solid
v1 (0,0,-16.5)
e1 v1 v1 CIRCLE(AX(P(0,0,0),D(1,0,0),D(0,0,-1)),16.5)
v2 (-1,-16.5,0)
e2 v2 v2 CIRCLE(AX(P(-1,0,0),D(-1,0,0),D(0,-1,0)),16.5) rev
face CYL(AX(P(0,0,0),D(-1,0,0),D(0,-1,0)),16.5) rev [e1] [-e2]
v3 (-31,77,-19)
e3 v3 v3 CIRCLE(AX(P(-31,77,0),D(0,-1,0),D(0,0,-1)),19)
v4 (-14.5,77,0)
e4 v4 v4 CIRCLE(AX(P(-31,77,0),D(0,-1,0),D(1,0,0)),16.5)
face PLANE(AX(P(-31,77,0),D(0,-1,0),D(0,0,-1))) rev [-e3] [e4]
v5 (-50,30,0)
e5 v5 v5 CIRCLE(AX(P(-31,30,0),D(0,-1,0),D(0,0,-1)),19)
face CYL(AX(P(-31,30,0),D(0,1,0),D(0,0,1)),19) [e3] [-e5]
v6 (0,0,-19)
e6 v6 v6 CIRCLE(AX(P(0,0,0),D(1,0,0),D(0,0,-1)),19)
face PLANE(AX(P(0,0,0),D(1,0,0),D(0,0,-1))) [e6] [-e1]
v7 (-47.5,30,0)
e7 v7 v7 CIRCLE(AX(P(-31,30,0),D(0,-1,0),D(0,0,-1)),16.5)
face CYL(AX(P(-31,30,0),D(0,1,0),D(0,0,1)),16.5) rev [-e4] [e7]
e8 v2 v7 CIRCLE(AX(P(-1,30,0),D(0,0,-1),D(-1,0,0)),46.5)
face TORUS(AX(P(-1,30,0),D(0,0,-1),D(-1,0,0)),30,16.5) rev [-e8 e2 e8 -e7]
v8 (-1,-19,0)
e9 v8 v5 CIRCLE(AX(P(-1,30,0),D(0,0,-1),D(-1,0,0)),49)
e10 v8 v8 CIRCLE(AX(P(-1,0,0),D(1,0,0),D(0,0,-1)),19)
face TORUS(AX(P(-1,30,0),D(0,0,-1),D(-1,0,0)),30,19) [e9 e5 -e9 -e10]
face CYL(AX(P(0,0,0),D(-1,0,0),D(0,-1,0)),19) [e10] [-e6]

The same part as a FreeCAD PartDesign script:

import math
import FreeCAD as App
import Part
import Sketcher

doc = App.newDocument("Part")
body = doc.addObject("PartDesign::Body", "Body")

# Sketch on YZ plane
sketch1 = body.newObject("Sketcher::SketchObject", "Sketch")
sketch1.AttachmentSupport = (doc.getObject("YZ_Plane"), [""])
sketch1.MapMode = "FlatFace"
sketch1.addGeometry([
    Part.Circle(App.Vector(0, 0, 0), App.Vector(0, 0, 1), 19),
    Part.Circle(App.Vector(0, 0, 0), App.Vector(0, 0, 1), 16),
], False)
sketch1.addConstraint([
    Sketcher.Constraint("Coincident", 0, 3, -1, 1),
    Sketcher.Constraint("Coincident", 1, 3, -1, 1),
    Sketcher.Constraint("Diameter", 0, 38.0),
    Sketcher.Constraint("Diameter", 1, 33.0),
])

# Sketch on XY plane
sketch2 = body.newObject("Sketcher::SketchObject", "Sketch001")
sketch2.AttachmentSupport = (doc.getObject("XY_Plane"), [""])
sketch2.MapMode = "FlatFace"
sketch2.addGeometry([
    Part.LineSegment(App.Vector(0, 0, 0), App.Vector(-1, 0, 0)),
    Part.ArcOfCircle(Part.Circle(App.Vector(-1, 30, 0), App.Vector(0, 0, 1), 30), math.radians(180), math.radians(270)),
    Part.LineSegment(App.Vector(-31, 30, 0), App.Vector(-31, 77, 0)),
], False)
sketch2.addConstraint([
    Sketcher.Constraint("Tangent", 0, 2, 1, 2),
    Sketcher.Constraint("Tangent", 1, 1, 2, 1),
    Sketcher.Constraint("Horizontal", 0),
    Sketcher.Constraint("Vertical", 2),
    Sketcher.Constraint("Coincident", 0, 1, -1, 1),
    Sketcher.Constraint("Radius", 1, 30.0),
    Sketcher.Constraint("DistanceX", 0, 2, 0, 1, 1.0),
    Sketcher.Constraint("DistanceY", 2, 1, 2, 2, 47.0),
])
doc.recompute()

additivepipe = body.newObject("PartDesign::AdditivePipe", "AdditivePipe")
additivepipe.Profile = sketch1
additivepipe.Spine = (sketch2, ["Edge1", "Edge2", "Edge3"])

doc.recompute()
